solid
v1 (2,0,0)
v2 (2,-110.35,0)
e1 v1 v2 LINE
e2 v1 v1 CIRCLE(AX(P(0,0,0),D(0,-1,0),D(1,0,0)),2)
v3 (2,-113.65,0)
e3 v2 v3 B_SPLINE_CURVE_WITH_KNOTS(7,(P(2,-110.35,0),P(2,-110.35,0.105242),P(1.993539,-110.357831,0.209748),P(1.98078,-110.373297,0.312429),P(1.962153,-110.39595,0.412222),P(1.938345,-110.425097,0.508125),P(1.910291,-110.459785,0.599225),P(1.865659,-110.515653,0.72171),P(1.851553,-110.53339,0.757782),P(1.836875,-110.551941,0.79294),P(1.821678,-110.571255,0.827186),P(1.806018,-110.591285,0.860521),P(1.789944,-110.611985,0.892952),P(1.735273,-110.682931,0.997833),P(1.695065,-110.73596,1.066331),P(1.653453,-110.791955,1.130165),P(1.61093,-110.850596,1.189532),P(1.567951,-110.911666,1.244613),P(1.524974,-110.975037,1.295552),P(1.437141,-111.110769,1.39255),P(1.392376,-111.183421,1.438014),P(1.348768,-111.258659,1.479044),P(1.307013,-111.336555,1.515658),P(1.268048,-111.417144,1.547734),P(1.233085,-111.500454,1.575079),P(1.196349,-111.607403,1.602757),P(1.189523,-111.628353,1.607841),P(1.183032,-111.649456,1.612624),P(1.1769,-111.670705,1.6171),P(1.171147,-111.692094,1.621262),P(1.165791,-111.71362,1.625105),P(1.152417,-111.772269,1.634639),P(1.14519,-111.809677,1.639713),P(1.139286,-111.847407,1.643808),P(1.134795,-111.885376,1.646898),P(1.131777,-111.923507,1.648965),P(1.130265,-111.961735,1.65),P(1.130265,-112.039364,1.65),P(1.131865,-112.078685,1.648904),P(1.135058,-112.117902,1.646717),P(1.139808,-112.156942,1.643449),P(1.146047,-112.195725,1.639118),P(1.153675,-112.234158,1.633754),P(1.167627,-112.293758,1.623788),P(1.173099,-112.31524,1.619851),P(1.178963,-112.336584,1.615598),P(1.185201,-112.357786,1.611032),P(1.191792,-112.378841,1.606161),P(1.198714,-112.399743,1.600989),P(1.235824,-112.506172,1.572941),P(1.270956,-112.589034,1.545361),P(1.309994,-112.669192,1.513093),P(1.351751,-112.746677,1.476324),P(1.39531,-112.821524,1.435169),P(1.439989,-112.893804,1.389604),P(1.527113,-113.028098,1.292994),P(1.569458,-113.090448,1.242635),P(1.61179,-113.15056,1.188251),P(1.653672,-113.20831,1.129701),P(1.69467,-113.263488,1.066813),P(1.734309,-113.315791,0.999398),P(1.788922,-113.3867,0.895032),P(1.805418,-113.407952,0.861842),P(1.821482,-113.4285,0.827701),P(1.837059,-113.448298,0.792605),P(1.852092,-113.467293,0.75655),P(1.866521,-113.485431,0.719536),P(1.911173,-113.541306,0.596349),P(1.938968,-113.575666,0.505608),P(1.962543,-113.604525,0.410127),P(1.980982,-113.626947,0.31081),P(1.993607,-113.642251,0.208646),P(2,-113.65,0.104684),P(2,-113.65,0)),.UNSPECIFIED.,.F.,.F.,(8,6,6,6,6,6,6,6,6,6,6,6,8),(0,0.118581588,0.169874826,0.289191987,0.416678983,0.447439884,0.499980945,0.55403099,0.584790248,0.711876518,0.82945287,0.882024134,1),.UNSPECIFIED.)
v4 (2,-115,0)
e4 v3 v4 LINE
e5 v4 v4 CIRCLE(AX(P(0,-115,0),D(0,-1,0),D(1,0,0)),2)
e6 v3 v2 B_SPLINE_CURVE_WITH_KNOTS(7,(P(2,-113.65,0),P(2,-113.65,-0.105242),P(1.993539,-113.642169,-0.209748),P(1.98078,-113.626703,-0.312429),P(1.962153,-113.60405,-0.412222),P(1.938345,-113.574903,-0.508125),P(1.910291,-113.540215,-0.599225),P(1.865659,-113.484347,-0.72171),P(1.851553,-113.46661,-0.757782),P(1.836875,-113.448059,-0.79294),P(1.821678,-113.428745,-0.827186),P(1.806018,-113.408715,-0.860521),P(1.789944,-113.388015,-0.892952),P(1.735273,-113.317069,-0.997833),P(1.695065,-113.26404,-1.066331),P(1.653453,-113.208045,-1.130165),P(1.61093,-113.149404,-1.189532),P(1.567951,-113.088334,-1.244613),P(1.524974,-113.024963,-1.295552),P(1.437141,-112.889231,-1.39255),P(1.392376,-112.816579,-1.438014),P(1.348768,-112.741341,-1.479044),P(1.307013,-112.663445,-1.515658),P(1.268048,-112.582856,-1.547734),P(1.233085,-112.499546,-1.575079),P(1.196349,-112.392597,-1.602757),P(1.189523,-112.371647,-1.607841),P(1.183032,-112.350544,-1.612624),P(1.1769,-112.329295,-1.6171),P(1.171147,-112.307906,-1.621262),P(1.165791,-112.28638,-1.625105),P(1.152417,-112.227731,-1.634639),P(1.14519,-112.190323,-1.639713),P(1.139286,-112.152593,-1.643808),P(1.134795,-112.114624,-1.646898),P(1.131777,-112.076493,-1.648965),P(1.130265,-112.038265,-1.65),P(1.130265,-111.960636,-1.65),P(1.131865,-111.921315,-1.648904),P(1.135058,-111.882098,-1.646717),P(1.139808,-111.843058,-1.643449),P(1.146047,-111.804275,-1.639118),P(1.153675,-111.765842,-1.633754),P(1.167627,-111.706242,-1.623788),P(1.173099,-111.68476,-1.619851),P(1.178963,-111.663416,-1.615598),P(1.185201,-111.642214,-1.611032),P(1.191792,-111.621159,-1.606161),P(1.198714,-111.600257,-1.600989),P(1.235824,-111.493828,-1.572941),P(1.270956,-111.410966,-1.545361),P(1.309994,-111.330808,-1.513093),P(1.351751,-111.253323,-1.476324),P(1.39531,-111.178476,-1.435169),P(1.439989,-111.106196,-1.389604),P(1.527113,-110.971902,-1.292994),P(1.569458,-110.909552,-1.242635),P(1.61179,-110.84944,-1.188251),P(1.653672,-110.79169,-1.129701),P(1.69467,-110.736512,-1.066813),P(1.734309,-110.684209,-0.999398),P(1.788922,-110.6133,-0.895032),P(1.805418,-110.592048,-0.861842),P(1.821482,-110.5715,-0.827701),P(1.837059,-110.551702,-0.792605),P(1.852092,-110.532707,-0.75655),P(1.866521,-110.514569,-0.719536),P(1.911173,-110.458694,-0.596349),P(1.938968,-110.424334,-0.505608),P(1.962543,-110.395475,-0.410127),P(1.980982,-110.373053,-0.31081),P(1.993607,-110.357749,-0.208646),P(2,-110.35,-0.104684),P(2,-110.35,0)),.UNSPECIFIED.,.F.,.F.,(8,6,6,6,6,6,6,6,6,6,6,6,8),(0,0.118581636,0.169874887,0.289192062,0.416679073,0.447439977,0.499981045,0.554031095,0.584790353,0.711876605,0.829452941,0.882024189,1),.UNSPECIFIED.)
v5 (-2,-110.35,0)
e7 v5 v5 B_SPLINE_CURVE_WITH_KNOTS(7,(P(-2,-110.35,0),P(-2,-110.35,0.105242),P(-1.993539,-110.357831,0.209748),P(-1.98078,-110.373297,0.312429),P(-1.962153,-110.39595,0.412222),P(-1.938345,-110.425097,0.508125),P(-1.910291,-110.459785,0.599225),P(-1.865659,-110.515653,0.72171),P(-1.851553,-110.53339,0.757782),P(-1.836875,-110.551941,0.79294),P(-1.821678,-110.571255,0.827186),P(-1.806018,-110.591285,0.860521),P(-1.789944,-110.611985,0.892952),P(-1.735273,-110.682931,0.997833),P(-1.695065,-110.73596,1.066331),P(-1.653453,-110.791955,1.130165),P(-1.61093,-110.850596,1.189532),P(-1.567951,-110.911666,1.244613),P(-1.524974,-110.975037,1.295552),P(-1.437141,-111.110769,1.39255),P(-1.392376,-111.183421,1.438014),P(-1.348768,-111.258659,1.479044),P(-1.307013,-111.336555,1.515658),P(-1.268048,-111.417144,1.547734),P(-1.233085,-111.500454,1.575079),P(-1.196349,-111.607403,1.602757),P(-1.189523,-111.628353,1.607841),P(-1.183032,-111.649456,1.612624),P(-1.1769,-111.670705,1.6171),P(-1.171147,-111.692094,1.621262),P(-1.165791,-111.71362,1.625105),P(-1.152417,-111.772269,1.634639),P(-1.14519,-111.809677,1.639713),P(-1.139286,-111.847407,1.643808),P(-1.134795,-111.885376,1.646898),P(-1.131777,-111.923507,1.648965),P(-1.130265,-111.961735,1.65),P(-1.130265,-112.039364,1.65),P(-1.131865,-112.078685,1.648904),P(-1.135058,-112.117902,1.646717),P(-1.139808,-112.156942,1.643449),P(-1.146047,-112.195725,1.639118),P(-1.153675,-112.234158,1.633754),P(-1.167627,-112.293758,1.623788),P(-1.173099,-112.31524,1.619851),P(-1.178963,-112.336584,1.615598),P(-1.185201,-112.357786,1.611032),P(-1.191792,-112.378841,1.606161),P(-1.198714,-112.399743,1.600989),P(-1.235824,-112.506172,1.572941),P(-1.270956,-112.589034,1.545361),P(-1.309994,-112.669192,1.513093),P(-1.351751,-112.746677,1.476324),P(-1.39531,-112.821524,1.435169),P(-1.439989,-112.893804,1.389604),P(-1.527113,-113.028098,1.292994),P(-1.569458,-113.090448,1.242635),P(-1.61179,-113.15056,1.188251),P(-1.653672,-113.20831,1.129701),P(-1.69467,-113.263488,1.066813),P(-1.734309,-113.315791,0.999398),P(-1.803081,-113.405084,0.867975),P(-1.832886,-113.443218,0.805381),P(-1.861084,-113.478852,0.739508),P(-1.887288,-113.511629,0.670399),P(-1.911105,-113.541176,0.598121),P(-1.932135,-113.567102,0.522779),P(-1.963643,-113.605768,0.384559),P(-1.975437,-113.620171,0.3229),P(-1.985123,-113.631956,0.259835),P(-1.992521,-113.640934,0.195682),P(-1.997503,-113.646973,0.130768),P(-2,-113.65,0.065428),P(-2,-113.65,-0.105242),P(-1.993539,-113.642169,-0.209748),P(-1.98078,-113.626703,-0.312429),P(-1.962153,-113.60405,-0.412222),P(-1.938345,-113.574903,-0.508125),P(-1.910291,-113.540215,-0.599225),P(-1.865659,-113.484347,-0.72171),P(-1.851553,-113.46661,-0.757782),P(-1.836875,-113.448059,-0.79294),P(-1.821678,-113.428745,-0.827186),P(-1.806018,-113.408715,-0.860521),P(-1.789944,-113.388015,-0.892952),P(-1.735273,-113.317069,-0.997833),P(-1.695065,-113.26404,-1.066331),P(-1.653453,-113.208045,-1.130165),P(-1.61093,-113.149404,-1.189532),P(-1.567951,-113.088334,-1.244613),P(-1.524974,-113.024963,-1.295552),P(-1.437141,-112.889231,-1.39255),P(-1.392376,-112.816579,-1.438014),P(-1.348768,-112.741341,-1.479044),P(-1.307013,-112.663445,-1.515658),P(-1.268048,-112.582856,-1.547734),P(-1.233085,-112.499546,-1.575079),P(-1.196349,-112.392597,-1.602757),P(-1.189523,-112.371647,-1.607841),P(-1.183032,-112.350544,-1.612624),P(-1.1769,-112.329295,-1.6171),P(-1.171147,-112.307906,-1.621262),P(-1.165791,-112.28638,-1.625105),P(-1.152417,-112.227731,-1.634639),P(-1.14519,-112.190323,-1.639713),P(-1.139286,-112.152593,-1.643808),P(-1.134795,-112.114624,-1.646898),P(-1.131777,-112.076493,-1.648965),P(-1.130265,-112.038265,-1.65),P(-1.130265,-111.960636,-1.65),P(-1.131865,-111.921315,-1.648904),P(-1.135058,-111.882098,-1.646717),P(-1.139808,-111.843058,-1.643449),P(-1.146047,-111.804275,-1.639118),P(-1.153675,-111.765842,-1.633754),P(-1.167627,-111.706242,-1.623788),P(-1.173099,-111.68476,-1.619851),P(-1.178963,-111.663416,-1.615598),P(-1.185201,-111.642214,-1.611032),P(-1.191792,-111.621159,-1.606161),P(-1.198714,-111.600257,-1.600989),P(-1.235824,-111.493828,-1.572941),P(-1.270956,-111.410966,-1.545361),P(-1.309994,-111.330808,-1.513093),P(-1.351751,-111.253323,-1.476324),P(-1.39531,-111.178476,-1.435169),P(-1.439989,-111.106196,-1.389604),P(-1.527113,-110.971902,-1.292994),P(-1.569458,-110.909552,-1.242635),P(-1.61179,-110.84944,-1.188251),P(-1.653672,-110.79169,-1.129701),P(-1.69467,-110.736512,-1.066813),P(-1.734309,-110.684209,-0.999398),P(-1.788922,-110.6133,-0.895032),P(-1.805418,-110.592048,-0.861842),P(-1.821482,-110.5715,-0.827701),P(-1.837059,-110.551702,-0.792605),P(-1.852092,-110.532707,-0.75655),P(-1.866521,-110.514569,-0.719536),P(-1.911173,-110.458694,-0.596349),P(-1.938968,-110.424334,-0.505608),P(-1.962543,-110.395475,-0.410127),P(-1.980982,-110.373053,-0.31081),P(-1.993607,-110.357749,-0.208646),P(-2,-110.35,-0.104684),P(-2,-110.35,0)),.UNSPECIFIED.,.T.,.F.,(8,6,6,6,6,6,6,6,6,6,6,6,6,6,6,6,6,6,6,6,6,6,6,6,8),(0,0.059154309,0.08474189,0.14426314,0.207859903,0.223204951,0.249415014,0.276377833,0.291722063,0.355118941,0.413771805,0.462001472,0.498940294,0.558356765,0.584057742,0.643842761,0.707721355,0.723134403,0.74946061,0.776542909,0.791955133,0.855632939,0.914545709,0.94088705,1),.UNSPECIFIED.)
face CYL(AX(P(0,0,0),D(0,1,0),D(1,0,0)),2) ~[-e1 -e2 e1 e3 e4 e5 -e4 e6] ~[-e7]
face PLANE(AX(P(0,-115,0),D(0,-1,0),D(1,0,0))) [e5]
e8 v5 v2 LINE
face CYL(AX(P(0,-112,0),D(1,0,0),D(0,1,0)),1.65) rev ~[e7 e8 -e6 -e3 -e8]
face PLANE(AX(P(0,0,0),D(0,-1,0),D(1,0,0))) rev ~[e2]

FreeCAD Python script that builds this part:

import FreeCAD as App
import Part
import Sketcher
from FreeCAD import Vector

doc = App.newDocument("Part")
body = doc.addObject("PartDesign::Body", "Body")

# Sketch on XZ plane
sketch1 = body.newObject("Sketcher::SketchObject", "Sketch")
sketch1.AttachmentSupport = (doc.getObject("XZ_Plane"), [""])
sketch1.MapMode = "FlatFace"
sketch1.addGeometry(Part.Circle(Vector(0, 0, 0), Vector(0, 0, 1), 2), False)
sketch1.addConstraint([
    Sketcher.Constraint("Coincident", 0, 3, -1, 1),
    Sketcher.Constraint("Diameter", 0, 4.0),
])
pad1 = body.newObject("PartDesign::Pad", "Pad")
pad1.Profile = sketch1
pad1.Length = 115

# Sketch on YZ plane
sketch2 = body.newObject("Sketcher::SketchObject", "Sketch001")
sketch2.AttachmentSupport = (doc.getObject("YZ_Plane"), [""])
sketch2.MapMode = "FlatFace"
sketch2.addGeometry(Part.Circle(Vector(-112, 0, 0), Vector(0, 0, 1), 1.6), False)
sketch2.addConstraint([
    Sketcher.Constraint("PointOnObject", 0, 3, -1),
    Sketcher.Constraint("Diameter", 0, 3.3),
    Sketcher.Constraint("DistanceX", 0, 3, -1, 1, 112.0),
])
pocket1 = body.newObject("PartDesign::Pocket", "Pocket")
pocket1.Profile = sketch2
pocket1.Length = 25
pocket1.Midplane = True

doc.recompute()
